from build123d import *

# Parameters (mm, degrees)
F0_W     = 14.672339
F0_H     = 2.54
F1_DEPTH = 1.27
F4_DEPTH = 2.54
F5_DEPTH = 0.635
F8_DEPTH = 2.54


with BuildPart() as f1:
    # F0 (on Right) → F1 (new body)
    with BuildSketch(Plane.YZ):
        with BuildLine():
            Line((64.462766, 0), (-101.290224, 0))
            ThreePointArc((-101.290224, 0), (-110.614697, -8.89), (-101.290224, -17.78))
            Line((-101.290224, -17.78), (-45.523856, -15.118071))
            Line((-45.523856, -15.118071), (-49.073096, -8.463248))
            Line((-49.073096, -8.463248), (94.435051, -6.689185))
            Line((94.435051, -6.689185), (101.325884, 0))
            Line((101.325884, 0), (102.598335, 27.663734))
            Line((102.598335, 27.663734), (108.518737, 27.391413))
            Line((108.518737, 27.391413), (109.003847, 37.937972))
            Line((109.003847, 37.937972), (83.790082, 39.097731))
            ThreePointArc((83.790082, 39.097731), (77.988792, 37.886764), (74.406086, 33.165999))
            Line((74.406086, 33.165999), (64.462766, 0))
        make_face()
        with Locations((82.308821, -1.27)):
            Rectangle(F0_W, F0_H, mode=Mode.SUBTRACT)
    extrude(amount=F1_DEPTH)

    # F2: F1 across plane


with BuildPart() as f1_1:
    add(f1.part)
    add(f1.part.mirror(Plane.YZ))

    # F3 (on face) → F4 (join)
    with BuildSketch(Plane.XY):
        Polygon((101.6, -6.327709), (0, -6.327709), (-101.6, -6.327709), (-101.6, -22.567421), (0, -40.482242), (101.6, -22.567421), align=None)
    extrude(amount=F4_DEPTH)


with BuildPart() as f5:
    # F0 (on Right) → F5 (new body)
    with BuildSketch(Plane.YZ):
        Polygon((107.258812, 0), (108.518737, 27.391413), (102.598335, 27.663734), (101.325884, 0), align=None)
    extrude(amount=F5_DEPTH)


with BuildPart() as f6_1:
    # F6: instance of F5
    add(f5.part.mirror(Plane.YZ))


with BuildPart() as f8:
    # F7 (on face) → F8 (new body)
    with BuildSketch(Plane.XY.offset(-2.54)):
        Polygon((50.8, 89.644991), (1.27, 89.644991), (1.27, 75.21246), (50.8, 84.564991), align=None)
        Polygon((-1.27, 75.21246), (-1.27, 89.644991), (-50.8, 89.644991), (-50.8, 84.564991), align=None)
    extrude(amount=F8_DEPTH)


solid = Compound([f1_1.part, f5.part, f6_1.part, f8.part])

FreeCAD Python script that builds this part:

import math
import FreeCAD as App
import Part
import Sketcher

V = App.Vector
Q = App.Units.Quantity

doc = App.newDocument("Part")
body = doc.addObject("PartDesign::Body", "Body")

# Sketch on YZ plane
sketch1 = body.newObject("Sketcher::SketchObject", "Sketch")
sketch1.AttachmentSupport = (doc.getObject("YZ_Plane"), [""])
sketch1.MapMode = "FlatFace"
sketch1.addGeometry(Part.LineSegment(V(64.462766, 0, 0), V(-101.290224, 0, 0)), False)
sketch1.addGeometry(Part.ArcOfCircle(Part.Circle(V(-101.714575, -8.89, 0), V(0, 0, 1), 8.900122), math.radians(87.267146), math.radians(272.732854)), False)
sketch1.addGeometry(Part.LineSegment(V(-101.290224, -17.78, 0), V(-45.523856, -15.118071, 0)), False)
sketch1.addGeometry(Part.LineSegment(V(-45.523856, -15.118071, 0), V(-49.073096, -8.463248, 0)), False)
sketch1.addGeometry(Part.LineSegment(V(-49.073096, -8.463248, 0), V(94.435051, -6.689185, 0)), False)
sketch1.addGeometry(Part.LineSegment(V(94.435051, -6.689185, 0), V(101.325884, 0, 0)), False)
sketch1.addGeometry(Part.LineSegment(V(101.325884, 0, 0), V(102.598335, 27.663734, 0)), False)
sketch1.addGeometry(Part.LineSegment(V(102.598335, 27.663734, 0), V(108.518737, 27.391413, 0)), False)
sketch1.addGeometry(Part.LineSegment(V(108.518737, 27.391413, 0), V(109.003847, 37.937972, 0)), False)
sketch1.addGeometry(Part.LineSegment(V(109.003847, 37.937972, 0), V(83.790082, 39.097731, 0)), False)
sketch1.addGeometry(Part.ArcOfCircle(Part.Circle(V(82.508292, 30.736918, 0), V(0, 0, 1), 8.458497), math.radians(81.283892), math.radians(163.311013)), False)
sketch1.addGeometry(Part.LineSegment(V(74.406086, 33.165999, 0), V(64.462766, 0, 0)), False)
sketch1.addGeometry(Part.LineSegment(V(89.644991, -2.54, 0), V(74.972651, -2.54, 0)), False)
sketch1.addGeometry(Part.LineSegment(V(74.972651, -2.54, 0), V(74.972651, 0, 0)), False)
sketch1.addGeometry(Part.LineSegment(V(74.972651, 0, 0), V(89.644991, 0, 0)), False)
sketch1.addGeometry(Part.LineSegment(V(89.644991, 0, 0), V(89.644991, -2.54, 0)), False)
sketch1.addConstraint(Sketcher.Constraint("Coincident", 0, 2, 1, 1))
sketch1.addConstraint(Sketcher.Constraint("Coincident", 1, 2, 2, 1))
sketch1.addConstraint(Sketcher.Constraint("Coincident", 2, 2, 3, 1))
sketch1.addConstraint(Sketcher.Constraint("Coincident", 3, 2, 4, 1))
sketch1.addConstraint(Sketcher.Constraint("Coincident", 4, 2, 5, 1))
sketch1.addConstraint(Sketcher.Constraint("Coincident", 5, 2, 6, 1))
sketch1.addConstraint(Sketcher.Constraint("Coincident", 6, 2, 7, 1))
sketch1.addConstraint(Sketcher.Constraint("Coincident", 7, 2, 8, 1))
sketch1.addConstraint(Sketcher.Constraint("Coincident", 8, 2, 9, 1))
sketch1.addConstraint(Sketcher.Constraint("Coincident", 9, 2, 10, 1))
sketch1.addConstraint(Sketcher.Constraint("Coincident", 10, 2, 11, 1))
sketch1.addConstraint(Sketcher.Constraint("Coincident", 11, 2, 0, 1))
sketch1.addConstraint(Sketcher.Constraint("Coincident", 12, 2, 13, 1))
sketch1.addConstraint(Sketcher.Constraint("Coincident", 13, 2, 14, 1))
sketch1.addConstraint(Sketcher.Constraint("Coincident", 14, 2, 15, 1))
sketch1.addConstraint(Sketcher.Constraint("Coincident", 15, 2, 12, 1))
sketch1.addConstraint(Sketcher.Constraint("Horizontal", 0))
sketch1.addConstraint(Sketcher.Constraint("Horizontal", 12))
sketch1.addConstraint(Sketcher.Constraint("Vertical", 13))
sketch1.addConstraint(Sketcher.Constraint("Horizontal", 14))
sketch1.addConstraint(Sketcher.Constraint("Vertical", 15))
sketch1.addConstraint(Sketcher.Constraint("PointOnObject", 0, 2, -1))
sketch1.addConstraint(Sketcher.Constraint("PointOnObject", 5, 2, -1))
sketch1.addConstraint(Sketcher.Constraint("PointOnObject", 13, 2, -1))
sketch1.addConstraint(Sketcher.Constraint("DistanceY", 13, 1, 13, 2, Q("0.1 in")))
sketch1.addConstraint(Sketcher.Constraint("DistanceY", 1, 2, -1, 1, Q("0.7 in")))
sketch1.addConstraint(Sketcher.Constraint("DistanceY", 1, 3, -1, 1, Q("0.35 in")))
sketch1.addConstraint(Sketcher.Constraint("Radius", 1, 8.900122))
sketch1.addConstraint(Sketcher.Constraint("Radius", 10, 8.458497))
sketch1.addConstraint(Sketcher.Constraint("DistanceX", 0, 2, 0, 1, 165.75299))
sketch1.addConstraint(Sketcher.Constraint("DistanceX", 12, 2, 12, 1, 14.672339))
sketch1.addConstraint(Sketcher.Constraint("DistanceY", -1, 1, 10, 2, 33.165999))
sketch1.addConstraint(Sketcher.Constraint("DistanceX", 6, 2, 7, 2, 5.920402))
sketch1.addConstraint(Sketcher.Constraint("DistanceY", 4, 2, 7, 2, 34.080598))
sketch1.addConstraint(Sketcher.Constraint("DistanceX", 12, 2, 4, 2, 19.4624))
sketch1.addConstraint(Sketcher.Constraint("Distance", 5, 9.603581))
sketch1.addConstraint(Sketcher.Constraint("Distance", 7, 5.926662))
sketch1.addConstraint(Sketcher.Constraint("Distance", 8, 10.55771))
sketch1.addConstraint(Sketcher.Constraint("Distance", 11, 34.624458))
sketch1.addConstraint(Sketcher.Constraint("DistanceY", -1, 1, 10, 3, 30.736918))
sketch1.addConstraint(Sketcher.Constraint("DistanceY", 2, 2, -1, 1, 15.118071))
sketch1.addConstraint(Sketcher.Constraint("DistanceX", -1, 1, 4, 2, 94.435051))
sketch1.addConstraint(Sketcher.Constraint("DistanceX", -1, 1, 9, 2, 83.790082))
sketch1.addConstraint(Sketcher.Constraint("DistanceY", -1, 1, 9, 2, 39.097731))
sketch1.addConstraint(Sketcher.Constraint("DistanceX", 1, 3, 2, 2, 56.190719))
sketch1.addConstraint(Sketcher.Constraint("DistanceX", 3, 2, 2, 2, 3.54924))
sketch1.addConstraint(Sketcher.Constraint("DistanceX", 10, 3, 5, 2, 18.817592))
sketch1.addConstraint(Sketcher.Constraint("DistanceX", 5, 2, 6, 2, 1.272451))
sketch1.addConstraint(Sketcher.Constraint("DistanceY", 3, 2, 6, 2, 36.126982))
sketch1.addConstraint(Sketcher.Constraint("DistanceX", 7, 2, 8, 2, 0.48511))
pad1 = body.newObject("PartDesign::Pad", "Pad")
pad1.Profile = sketch1
pad1.Length = Q("0.05 in")
body2 = doc.addObject("PartDesign::Body", "Body001")
doc.recompute()

body2.BaseFeature = body
doc.recompute()

mirroring = doc.addObject("Part::Mirroring", "Mirroring")
mirroring.Source = body
mirroring.Base = V(0, 0, 0)
mirroring.Normal = V(1, 0, 0)
body3 = doc.addObject("PartDesign::Body", "Body002")
body3.BaseFeature = mirroring
boolean = body2.newObject("PartDesign::Boolean", "Boolean")
boolean.Type = "Fuse"
boolean.addObjects([body3])
doc.recompute()

# Sketch on XY plane
sketch2 = body2.newObject("Sketcher::SketchObject", "Sketch001")
sketch2.AttachmentSupport = (doc.getObject("XY_Plane001"), [""])
sketch2.MapMode = "FlatFace"
sketch2.addGeometry(Part.LineSegment(V(102, -6, 0), V(-102, -6, 0)), False)
sketch2.addGeometry(Part.LineSegment(V(-102, -6, 0), V(-102, -23, 0)), False)
sketch2.addGeometry(Part.LineSegment(V(-102, -23, 0), V(0, -40, 0)), False)
sketch2.addGeometry(Part.LineSegment(V(0, -40, 0), V(102, -23, 0)), False)
sketch2.addGeometry(Part.LineSegment(V(102, -23, 0), V(102, -6, 0)), False)
sketch2.addConstraint(Sketcher.Constraint("Coincident", 0, 2, 1, 1))
sketch2.addConstraint(Sketcher.Constraint("Coincident", 1, 2, 2, 1))
sketch2.addConstraint(Sketcher.Constraint("Coincident", 2, 2, 3, 1))
sketch2.addConstraint(Sketcher.Constraint("Coincident", 3, 2, 4, 1))
sketch2.addConstraint(Sketcher.Constraint("Coincident", 4, 2, 0, 1))
sketch2.addConstraint(Sketcher.Constraint("Horizontal", 0))
sketch2.addConstraint(Sketcher.Constraint("Vertical", 1))
sketch2.addConstraint(Sketcher.Constraint("Vertical", 4))
sketch2.addConstraint(Sketcher.Constraint("Symmetric", 1, 2, 3, 2, -2))
sketch2.addConstraint(Sketcher.Constraint("PointOnObject", 2, 2, -2))
sketch2.addConstraint(Sketcher.Constraint("DistanceX", 0, 2, 0, 1, Q("8 in")))
sketch2.addConstraint(Sketcher.Constraint("Angle", 2, Q("-10 deg")))
sketch2.addConstraint(Sketcher.Constraint("DistanceY", 1, 2, 1, 1, 16.239712))
sketch2.addConstraint(Sketcher.Constraint("DistanceY", 0, 2, -1, 1, 6.327709))
pad2 = body2.newObject("PartDesign::Pad", "Pad001")
pad2.Profile = sketch2
pad2.Length = Q("0.1 in")
body4 = doc.addObject("PartDesign::Body", "Body003")

# Sketch on YZ plane
sketch3 = body4.newObject("Sketcher::SketchObject", "Sketch002")
sketch3.AttachmentSupport = (doc.getObject("YZ_Plane003"), [""])
sketch3.MapMode = "FlatFace"
sketch3.addGeometry(Part.LineSegment(V(107.258812, 0, 0), V(108.518737, 27.391413, 0)), False)
sketch3.addGeometry(Part.LineSegment(V(108.518737, 27.391413, 0), V(102.598335, 27.663734, 0)), False)
sketch3.addGeometry(Part.LineSegment(V(102.598335, 27.663734, 0), V(101.325884, 0, 0)), False)
sketch3.addGeometry(Part.LineSegment(V(101.325884, 0, 0), V(107.258812, 0, 0)), False)
sketch3.addConstraint(Sketcher.Constraint("Coincident", 0, 2, 1, 1))
sketch3.addConstraint(Sketcher.Constraint("Coincident", 1, 2, 2, 1))
sketch3.addConstraint(Sketcher.Constraint("Coincident", 2, 2, 3, 1))
sketch3.addConstraint(Sketcher.Constraint("Coincident", 3, 2, 0, 1))
sketch3.addConstraint(Sketcher.Constraint("Horizontal", 3))
sketch3.addConstraint(Sketcher.Constraint("PointOnObject", 2, 2, -1))
sketch3.addConstraint(Sketcher.Constraint("Perpendicular", 0, 1))
sketch3.addConstraint(Sketcher.Constraint("Perpendicular", 1, 2))
sketch3.addConstraint(Sketcher.Constraint("DistanceX", 3, 1, 3, 2, 5.932928))
sketch3.addConstraint(Sketcher.Constraint("DistanceX", 1, 2, 0, 2, 5.920402))
sketch3.addConstraint(Sketcher.Constraint("DistanceX", 2, 2, 1, 2, 1.272451))
sketch3.addConstraint(Sketcher.Constraint("DistanceX", -1, 1, 0, 2, 108.518737))
pad3 = body4.newObject("PartDesign::Pad", "Pad002")
pad3.Profile = sketch3
pad3.Length = Q("0.025 in")
body5 = doc.addObject("PartDesign::Body", "Body004")
doc.recompute()

mirroring2 = doc.addObject("Part::Mirroring", "Mirroring001")
mirroring2.Source = body4
mirroring2.Base = V(0, 0, 0)
mirroring2.Normal = V(1, 0, 0)
body5.BaseFeature = mirroring2
doc.recompute()
body6 = doc.addObject("PartDesign::Body", "Body005")
body6.AllowCompound = True

# Sketch on XY plane
sketch4 = body6.newObject("Sketcher::SketchObject", "Sketch003")
sketch4.AttachmentSupport = (doc.getObject("XY_Plane005"), [""])
sketch4.MapMode = "FlatFace"
sketch4.AttachmentOffset = App.Placement(V(0, 0, -0.1 * 25.4), App.Rotation())
sketch4.addGeometry(Part.LineSegment(V(51, 90, 0), V(1, 90, 0)), False)
sketch4.addGeometry(Part.LineSegment(V(1, 90, 0), V(1, 75, 0)), False)
sketch4.addGeometry(Part.LineSegment(V(1, 75, 0), V(51, 85, 0)), False)
sketch4.addGeometry(Part.LineSegment(V(51, 85, 0), V(51, 90, 0)), False)
sketch4.addGeometry(Part.LineSegment(V(-1, 75, 0), V(-1, 90, 0)), False)
sketch4.addGeometry(Part.LineSegment(V(-1, 90, 0), V(-51, 90, 0)), False)
sketch4.addGeometry(Part.LineSegment(V(-51, 90, 0), V(-51, 85, 0)), False)
sketch4.addGeometry(Part.LineSegment(V(-51, 85, 0), V(-1, 75, 0)), False)
sketch4.addConstraint(Sketcher.Constraint("Coincident", 0, 2, 1, 1))
sketch4.addConstraint(Sketcher.Constraint("Coincident", 1, 2, 2, 1))
sketch4.addConstraint(Sketcher.Constraint("Coincident", 2, 2, 3, 1))
sketch4.addConstraint(Sketcher.Constraint("Coincident", 3, 2, 0, 1))
sketch4.addConstraint(Sketcher.Constraint("Coincident", 4, 2, 5, 1))
sketch4.addConstraint(Sketcher.Constraint("Coincident", 5, 2, 6, 1))
sketch4.addConstraint(Sketcher.Constraint("Coincident", 6, 2, 7, 1))
sketch4.addConstraint(Sketcher.Constraint("Coincident", 7, 2, 4, 1))
sketch4.addConstraint(Sketcher.Constraint("Horizontal", 0))
sketch4.addConstraint(Sketcher.Constraint("Vertical", 1))
sketch4.addConstraint(Sketcher.Constraint("Vertical", 3))
sketch4.addConstraint(Sketcher.Constraint("Vertical", 4))
sketch4.addConstraint(Sketcher.Constraint("Horizontal", 5))
sketch4.addConstraint(Sketcher.Constraint("Vertical", 6))
sketch4.addConstraint(Sketcher.Constraint("Symmetric", 0, 2, 4, 2, -2))
sketch4.addConstraint(Sketcher.Constraint("Symmetric", 2, 2, 6, 2, -2))
sketch4.addConstraint(Sketcher.Constraint("Horizontal", 1, 2, 7, 2))
sketch4.addConstraint(Sketcher.Constraint("DistanceY", 3, 1, 3, 2, Q("0.2 in")))
sketch4.addConstraint(Sketcher.Constraint("DistanceX", -1, 1, 2, 2, Q("2 in")))
sketch4.addConstraint(Sketcher.Constraint("DistanceX", 0, 2, 0, 1, Q("1.95 in")))
sketch4.addConstraint(Sketcher.Constraint("DistanceY", 1, 2, 1, 1, 14.432531))
sketch4.addConstraint(Sketcher.Constraint("DistanceY", -1, 1, 0, 2, 89.644991))
pad4 = body6.newObject("PartDesign::Pad", "Pad003")
pad4.Profile = sketch4
pad4.Length = Q("0.1 in")
mirroring.Visibility = False
mirroring2.Visibility = False

doc.recompute()
